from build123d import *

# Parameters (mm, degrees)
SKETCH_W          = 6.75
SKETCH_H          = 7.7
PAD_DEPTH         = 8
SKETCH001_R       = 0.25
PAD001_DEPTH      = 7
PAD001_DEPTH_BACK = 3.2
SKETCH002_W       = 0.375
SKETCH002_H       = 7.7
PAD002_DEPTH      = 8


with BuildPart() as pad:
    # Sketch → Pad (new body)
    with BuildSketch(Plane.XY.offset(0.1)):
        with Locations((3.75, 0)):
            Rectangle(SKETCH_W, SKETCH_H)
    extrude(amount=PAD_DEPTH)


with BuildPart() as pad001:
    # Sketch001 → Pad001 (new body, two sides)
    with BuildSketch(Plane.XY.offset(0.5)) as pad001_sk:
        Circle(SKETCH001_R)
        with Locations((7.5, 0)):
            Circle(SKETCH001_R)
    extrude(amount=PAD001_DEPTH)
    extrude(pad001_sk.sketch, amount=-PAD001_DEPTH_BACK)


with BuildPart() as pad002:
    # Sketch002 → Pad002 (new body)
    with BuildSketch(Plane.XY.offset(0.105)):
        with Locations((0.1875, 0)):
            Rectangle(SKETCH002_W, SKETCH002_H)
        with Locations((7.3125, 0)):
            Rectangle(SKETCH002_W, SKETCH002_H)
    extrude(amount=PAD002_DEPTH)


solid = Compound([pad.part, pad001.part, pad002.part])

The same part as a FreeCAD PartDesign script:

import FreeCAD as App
import Part
import Sketcher


def add_polygon(sketch, points):
    """Adds a closed chain of lines whose ends are joined by coincident constraints."""
    first, n = sketch.GeometryCount, len(points)
    for a, b in zip(points, points[1:] + points[:1]):
        sketch.addGeometry(Part.LineSegment(App.Vector(*a, 0), App.Vector(*b, 0)), False)
    for i in range(n):
        sketch.addConstraint(Sketcher.Constraint("Coincident", first + i, 2, first + (i + 1) % n, 1))

doc = App.newDocument("Part")
params = doc.addObject("Spreadsheet::Sheet", "Params")
for row, (alias, value) in enumerate([
    ("sketch1_height", "7.7 mm"),
    ("sketch1_width", "6.75 mm"),
    ("pad1_length", "8 mm"),
    ("sketch2_diameter", "0.5 mm"),
    ("pad2_length", "7 mm"),
    ("pad2_length2", "3.2 mm"),
    ("sketch3_height", "7.7 mm"),
    ("pad3_length", "8 mm"),
], start=1):
    params.set(f"A{row}", alias)
    params.set(f"B{row}", "=" + value)
    params.setAlias(f"B{row}", alias)

body = doc.addObject("PartDesign::Body", "Body")

# Sketch on XY plane
sketch1 = body.newObject("Sketcher::SketchObject", "Sketch")
sketch1.AttachmentSupport = (doc.getObject("XY_Plane"), [""])
sketch1.MapMode = "FlatFace"
sketch1.AttachmentOffset = App.Placement(App.Vector(0, 0, 0.1), App.Rotation())
add_polygon(sketch1, [(0, 4), (0, -4), (7, -4), (7, 4)])  # lines 0-3
sketch1.addConstraint([
    Sketcher.Constraint("Vertical", 0),
    Sketcher.Constraint("Horizontal", 1),
    Sketcher.Constraint("Vertical", 2),
    Sketcher.Constraint("Horizontal", 3),
    Sketcher.Constraint("DistanceY", 0, 2, 0, 1, 7.7),
    Sketcher.Constraint("DistanceX", 1, 1, 1, 2, 6.75),
    Sketcher.Constraint("DistanceY", 0, 2, -1, 1, 3.85),
    Sketcher.Constraint("DistanceX", -1, 1, 0, 2, 0.375),
])
sketch1.setExpression("Constraints[8]", "Params.sketch1_height")
sketch1.setExpression("Constraints[9]", "Params.sketch1_width")
pad1 = body.newObject("PartDesign::Pad", "Pad")
pad1.Profile = sketch1
pad1.setExpression("Length", "Params.pad1_length")
body2 = doc.addObject("PartDesign::Body", "Body001")
body2.AllowCompound = True

# Sketch on XY plane
sketch2 = body2.newObject("Sketcher::SketchObject", "Sketch001")
sketch2.AttachmentSupport = (doc.getObject("XY_Plane001"), [""])
sketch2.MapMode = "FlatFace"
sketch2.AttachmentOffset = App.Placement(App.Vector(0, 0, 0.5), App.Rotation())
sketch2.addGeometry([
    Part.Circle(App.Vector(0, 0, 0), App.Vector(0, 0, 1), 0.25),
    Part.Circle(App.Vector(7.5, 0, 0), App.Vector(0, 0, 1), 0.25),
], False)
sketch2.addConstraint([
    Sketcher.Constraint("Coincident", 0, 3, -1, 1),
    Sketcher.Constraint("Equal", 0, 1),
    Sketcher.Constraint("PointOnObject", 1, 3, -1),
    Sketcher.Constraint("Diameter", 0, 0.5),
    Sketcher.Constraint("DistanceX", -1, 1, 1, 3, 7.5),
])
sketch2.setExpression("Constraints[3]", "Params.sketch2_diameter")
pad2 = body2.newObject("PartDesign::Pad", "Pad001")
pad2.Profile = sketch2
pad2.Type = "TwoLengths"
pad2.setExpression("Length", "Params.pad2_length")
pad2.setExpression("Length2", "Params.pad2_length2")
body3 = doc.addObject("PartDesign::Body", "Body002")
body3.AllowCompound = True

# Sketch on XY plane
sketch3 = body3.newObject("Sketcher::SketchObject", "Sketch002")
sketch3.AttachmentSupport = (doc.getObject("XY_Plane002"), [""])
sketch3.MapMode = "FlatFace"
sketch3.AttachmentOffset = App.Placement(App.Vector(0, 0, 0.105), App.Rotation())
add_polygon(sketch3, [(0, 3.85), (0, -3.85), (0.38, -3.85), (0.38, 3.85)])  # lines 0-3
add_polygon(sketch3, [(7.12, 3.85), (7.12, -3.85), (7.5, -3.85), (7.5, 3.85)])  # lines 4-7
sketch3.addConstraint([
    Sketcher.Constraint("Vertical", 0),
    Sketcher.Constraint("Horizontal", 1),
    Sketcher.Constraint("Vertical", 2),
    Sketcher.Constraint("Horizontal", 3),
    Sketcher.Constraint("Vertical", 4),
    Sketcher.Constraint("Horizontal", 5),
    Sketcher.Constraint("Vertical", 6),
    Sketcher.Constraint("Horizontal", 7),
    Sketcher.Constraint("Symmetric", 0, 2, 3, 2, -1, 1),
    Sketcher.Constraint("Horizontal", 1, 2, 4, 2),
    Sketcher.Constraint("Horizontal", 3, 2, 6, 2),
    Sketcher.Constraint("Equal", 3, 5),
    Sketcher.Constraint("DistanceY", 0, 2, 0, 1, 7.7),
    Sketcher.Constraint("DistanceX", -1, 1, 5, 2, 7.5),
    Sketcher.Constraint("DistanceX", 1, 1, 1, 2, 0.375),
])
sketch3.setExpression("Constraints[20]", "Params.sketch3_height")
pad3 = body3.newObject("PartDesign::Pad", "Pad002")
pad3.Profile = sketch3
pad3.setExpression("Length", "Params.pad3_length")

doc.recompute()
